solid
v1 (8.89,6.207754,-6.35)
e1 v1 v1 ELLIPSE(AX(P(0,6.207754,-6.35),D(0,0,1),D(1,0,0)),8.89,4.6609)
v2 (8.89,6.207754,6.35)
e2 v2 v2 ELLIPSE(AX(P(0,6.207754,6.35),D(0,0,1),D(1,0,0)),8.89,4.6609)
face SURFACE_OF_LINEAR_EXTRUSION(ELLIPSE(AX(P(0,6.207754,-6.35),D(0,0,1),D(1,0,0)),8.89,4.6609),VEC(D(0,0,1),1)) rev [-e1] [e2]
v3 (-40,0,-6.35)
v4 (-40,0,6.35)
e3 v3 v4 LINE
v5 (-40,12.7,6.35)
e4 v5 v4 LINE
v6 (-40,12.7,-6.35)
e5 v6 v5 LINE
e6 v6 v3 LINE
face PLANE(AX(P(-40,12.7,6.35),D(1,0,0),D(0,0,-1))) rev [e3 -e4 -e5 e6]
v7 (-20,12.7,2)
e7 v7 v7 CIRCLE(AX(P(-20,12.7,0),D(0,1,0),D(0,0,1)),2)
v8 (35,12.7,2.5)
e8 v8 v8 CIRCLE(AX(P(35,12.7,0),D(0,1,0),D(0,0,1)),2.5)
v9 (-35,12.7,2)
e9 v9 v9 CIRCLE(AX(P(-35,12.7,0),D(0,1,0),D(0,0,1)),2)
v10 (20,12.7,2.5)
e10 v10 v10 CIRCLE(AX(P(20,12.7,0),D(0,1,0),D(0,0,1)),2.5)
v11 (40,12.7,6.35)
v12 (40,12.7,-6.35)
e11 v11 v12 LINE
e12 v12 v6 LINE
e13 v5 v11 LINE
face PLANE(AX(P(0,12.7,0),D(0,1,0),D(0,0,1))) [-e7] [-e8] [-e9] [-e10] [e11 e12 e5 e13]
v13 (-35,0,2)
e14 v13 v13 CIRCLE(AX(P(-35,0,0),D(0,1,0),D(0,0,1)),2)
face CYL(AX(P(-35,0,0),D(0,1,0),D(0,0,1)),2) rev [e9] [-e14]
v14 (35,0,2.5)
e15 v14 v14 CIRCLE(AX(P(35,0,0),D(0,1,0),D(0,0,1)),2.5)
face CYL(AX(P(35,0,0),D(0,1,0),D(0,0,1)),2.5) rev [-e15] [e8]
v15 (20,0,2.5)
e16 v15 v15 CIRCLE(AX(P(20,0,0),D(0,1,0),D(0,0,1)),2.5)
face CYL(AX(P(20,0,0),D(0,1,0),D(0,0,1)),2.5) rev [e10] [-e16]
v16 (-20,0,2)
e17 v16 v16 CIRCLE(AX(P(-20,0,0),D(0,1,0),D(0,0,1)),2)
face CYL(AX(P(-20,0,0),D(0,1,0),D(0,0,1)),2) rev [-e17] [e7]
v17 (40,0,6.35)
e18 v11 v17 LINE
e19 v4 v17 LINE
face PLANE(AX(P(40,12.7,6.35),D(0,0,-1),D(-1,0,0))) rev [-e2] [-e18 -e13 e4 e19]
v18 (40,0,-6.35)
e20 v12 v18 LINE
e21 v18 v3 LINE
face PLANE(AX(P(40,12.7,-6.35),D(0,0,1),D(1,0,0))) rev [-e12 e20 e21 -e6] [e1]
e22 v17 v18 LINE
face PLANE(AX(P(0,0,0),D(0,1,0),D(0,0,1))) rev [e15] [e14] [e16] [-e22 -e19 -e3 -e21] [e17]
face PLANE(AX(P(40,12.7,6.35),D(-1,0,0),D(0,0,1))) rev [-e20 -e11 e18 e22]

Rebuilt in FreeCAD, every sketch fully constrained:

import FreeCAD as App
import Part
import Sketcher

doc = App.newDocument("Part")
body = doc.addObject("PartDesign::Body", "Body")

sketch1 = body.newObject("Sketcher::SketchObject", "Sketch")
sketch1.AttachmentSupport = (doc.getObject("XZ_Plane"), [""])
sketch1.MapMode = "FlatFace"
sketch1.addGeometry(Part.LineSegment(App.Vector(-40, -6.35, 0), App.Vector(-40, 6.35, 0)), False)
sketch1.addGeometry(Part.LineSegment(App.Vector(-40, 6.35, 0), App.Vector(40, 6.35, 0)), False)
sketch1.addGeometry(Part.LineSegment(App.Vector(40, 6.35, 0), App.Vector(40, -6.35, 0)), False)
sketch1.addGeometry(Part.LineSegment(App.Vector(40, -6.35, 0), App.Vector(-40, -6.35, 0)), False)
sketch1.addConstraint(Sketcher.Constraint("Coincident", 0, 2, 1, 1))
sketch1.addConstraint(Sketcher.Constraint("Coincident", 1, 2, 2, 1))
sketch1.addConstraint(Sketcher.Constraint("Coincident", 2, 2, 3, 1))
sketch1.addConstraint(Sketcher.Constraint("Coincident", 3, 2, 0, 1))
sketch1.addConstraint(Sketcher.Constraint("Vertical", 0))
sketch1.addConstraint(Sketcher.Constraint("Horizontal", 1))
sketch1.addConstraint(Sketcher.Constraint("Vertical", 2))
sketch1.addConstraint(Sketcher.Constraint("Horizontal", 3))
sketch1.addConstraint(Sketcher.Constraint("Symmetric", 0, 2, 2, 2, -1, 1))
sketch1.addConstraint(Sketcher.Constraint("DistanceX", 1, 1, 1, 2, 80.0))
sketch1.addConstraint(Sketcher.Constraint("DistanceY", 0, 1, 0, 2, 12.7))
pad1 = body.newObject("PartDesign::Pad", "Pad")
pad1.Profile = sketch1
pad1.Length = 12.7
pad1.Reversed = True

sketch2 = body.newObject("Sketcher::SketchObject", "Sketch001")
sketch2.AttachmentSupport = (doc.getObject("XZ_Plane"), [""])
sketch2.MapMode = "FlatFace"
sketch2.AttachmentOffset = App.Placement(App.Vector(0, 0, -12.7), App.Rotation())
sketch2.addGeometry(Part.Circle(App.Vector(-35, 0, 0), App.Vector(0, 0, 1), 2), False)
sketch2.addGeometry(Part.Circle(App.Vector(-20, 0, 0), App.Vector(0, 0, 1), 2), False)
sketch2.addGeometry(Part.Circle(App.Vector(35, 0, 0), App.Vector(0, 0, 1), 2.5), False)
sketch2.addGeometry(Part.Circle(App.Vector(20, 0, 0), App.Vector(0, 0, 1), 2.5), False)
sketch2.addConstraint(Sketcher.Constraint("Equal", 0, 1))
sketch2.addConstraint(Sketcher.Constraint("Equal", 2, 3))
sketch2.addConstraint(Sketcher.Constraint("Symmetric", 0, 3, 2, 3, -1, 1))
sketch2.addConstraint(Sketcher.Constraint("Symmetric", 1, 3, 3, 3, -1, 1))
sketch2.addConstraint(Sketcher.Constraint("PointOnObject", 0, 3, -1))
sketch2.addConstraint(Sketcher.Constraint("PointOnObject", 1, 3, -1))
sketch2.addConstraint(Sketcher.Constraint("Diameter", 0, 4.0))
sketch2.addConstraint(Sketcher.Constraint("Diameter", 2, 5.0))
sketch2.addConstraint(Sketcher.Constraint("DistanceX", 0, 3, -1, 1, 35.0))
sketch2.addConstraint(Sketcher.Constraint("DistanceX", 1, 3, -1, 1, 20.0))
pocket1 = body.newObject("PartDesign::Pocket", "Pocket")
pocket1.Profile = sketch2
pocket1.Type = "ThroughAll"
pocket1.Reversed = True

sketch3 = body.newObject("Sketcher::SketchObject", "Sketch002")
sketch3.AttachmentSupport = (doc.getObject("XY_Plane"), [""])
sketch3.MapMode = "FlatFace"
sketch3.AttachmentOffset = App.Placement(App.Vector(0, 0, 6.35), App.Rotation())
sketch3.addGeometry(Part.Ellipse(App.Vector(8.89, 6.207754, 0), App.Vector(0, 10.868654, 0), App.Vector(0, 6.207754, 0)), False)
sketch3.addConstraint(Sketcher.Constraint("Block", 0))
pocket2 = body.newObject("PartDesign::Pocket", "Pocket001")
pocket2.Profile = sketch3
pocket2.Type = "ThroughAll"

doc.recompute()
